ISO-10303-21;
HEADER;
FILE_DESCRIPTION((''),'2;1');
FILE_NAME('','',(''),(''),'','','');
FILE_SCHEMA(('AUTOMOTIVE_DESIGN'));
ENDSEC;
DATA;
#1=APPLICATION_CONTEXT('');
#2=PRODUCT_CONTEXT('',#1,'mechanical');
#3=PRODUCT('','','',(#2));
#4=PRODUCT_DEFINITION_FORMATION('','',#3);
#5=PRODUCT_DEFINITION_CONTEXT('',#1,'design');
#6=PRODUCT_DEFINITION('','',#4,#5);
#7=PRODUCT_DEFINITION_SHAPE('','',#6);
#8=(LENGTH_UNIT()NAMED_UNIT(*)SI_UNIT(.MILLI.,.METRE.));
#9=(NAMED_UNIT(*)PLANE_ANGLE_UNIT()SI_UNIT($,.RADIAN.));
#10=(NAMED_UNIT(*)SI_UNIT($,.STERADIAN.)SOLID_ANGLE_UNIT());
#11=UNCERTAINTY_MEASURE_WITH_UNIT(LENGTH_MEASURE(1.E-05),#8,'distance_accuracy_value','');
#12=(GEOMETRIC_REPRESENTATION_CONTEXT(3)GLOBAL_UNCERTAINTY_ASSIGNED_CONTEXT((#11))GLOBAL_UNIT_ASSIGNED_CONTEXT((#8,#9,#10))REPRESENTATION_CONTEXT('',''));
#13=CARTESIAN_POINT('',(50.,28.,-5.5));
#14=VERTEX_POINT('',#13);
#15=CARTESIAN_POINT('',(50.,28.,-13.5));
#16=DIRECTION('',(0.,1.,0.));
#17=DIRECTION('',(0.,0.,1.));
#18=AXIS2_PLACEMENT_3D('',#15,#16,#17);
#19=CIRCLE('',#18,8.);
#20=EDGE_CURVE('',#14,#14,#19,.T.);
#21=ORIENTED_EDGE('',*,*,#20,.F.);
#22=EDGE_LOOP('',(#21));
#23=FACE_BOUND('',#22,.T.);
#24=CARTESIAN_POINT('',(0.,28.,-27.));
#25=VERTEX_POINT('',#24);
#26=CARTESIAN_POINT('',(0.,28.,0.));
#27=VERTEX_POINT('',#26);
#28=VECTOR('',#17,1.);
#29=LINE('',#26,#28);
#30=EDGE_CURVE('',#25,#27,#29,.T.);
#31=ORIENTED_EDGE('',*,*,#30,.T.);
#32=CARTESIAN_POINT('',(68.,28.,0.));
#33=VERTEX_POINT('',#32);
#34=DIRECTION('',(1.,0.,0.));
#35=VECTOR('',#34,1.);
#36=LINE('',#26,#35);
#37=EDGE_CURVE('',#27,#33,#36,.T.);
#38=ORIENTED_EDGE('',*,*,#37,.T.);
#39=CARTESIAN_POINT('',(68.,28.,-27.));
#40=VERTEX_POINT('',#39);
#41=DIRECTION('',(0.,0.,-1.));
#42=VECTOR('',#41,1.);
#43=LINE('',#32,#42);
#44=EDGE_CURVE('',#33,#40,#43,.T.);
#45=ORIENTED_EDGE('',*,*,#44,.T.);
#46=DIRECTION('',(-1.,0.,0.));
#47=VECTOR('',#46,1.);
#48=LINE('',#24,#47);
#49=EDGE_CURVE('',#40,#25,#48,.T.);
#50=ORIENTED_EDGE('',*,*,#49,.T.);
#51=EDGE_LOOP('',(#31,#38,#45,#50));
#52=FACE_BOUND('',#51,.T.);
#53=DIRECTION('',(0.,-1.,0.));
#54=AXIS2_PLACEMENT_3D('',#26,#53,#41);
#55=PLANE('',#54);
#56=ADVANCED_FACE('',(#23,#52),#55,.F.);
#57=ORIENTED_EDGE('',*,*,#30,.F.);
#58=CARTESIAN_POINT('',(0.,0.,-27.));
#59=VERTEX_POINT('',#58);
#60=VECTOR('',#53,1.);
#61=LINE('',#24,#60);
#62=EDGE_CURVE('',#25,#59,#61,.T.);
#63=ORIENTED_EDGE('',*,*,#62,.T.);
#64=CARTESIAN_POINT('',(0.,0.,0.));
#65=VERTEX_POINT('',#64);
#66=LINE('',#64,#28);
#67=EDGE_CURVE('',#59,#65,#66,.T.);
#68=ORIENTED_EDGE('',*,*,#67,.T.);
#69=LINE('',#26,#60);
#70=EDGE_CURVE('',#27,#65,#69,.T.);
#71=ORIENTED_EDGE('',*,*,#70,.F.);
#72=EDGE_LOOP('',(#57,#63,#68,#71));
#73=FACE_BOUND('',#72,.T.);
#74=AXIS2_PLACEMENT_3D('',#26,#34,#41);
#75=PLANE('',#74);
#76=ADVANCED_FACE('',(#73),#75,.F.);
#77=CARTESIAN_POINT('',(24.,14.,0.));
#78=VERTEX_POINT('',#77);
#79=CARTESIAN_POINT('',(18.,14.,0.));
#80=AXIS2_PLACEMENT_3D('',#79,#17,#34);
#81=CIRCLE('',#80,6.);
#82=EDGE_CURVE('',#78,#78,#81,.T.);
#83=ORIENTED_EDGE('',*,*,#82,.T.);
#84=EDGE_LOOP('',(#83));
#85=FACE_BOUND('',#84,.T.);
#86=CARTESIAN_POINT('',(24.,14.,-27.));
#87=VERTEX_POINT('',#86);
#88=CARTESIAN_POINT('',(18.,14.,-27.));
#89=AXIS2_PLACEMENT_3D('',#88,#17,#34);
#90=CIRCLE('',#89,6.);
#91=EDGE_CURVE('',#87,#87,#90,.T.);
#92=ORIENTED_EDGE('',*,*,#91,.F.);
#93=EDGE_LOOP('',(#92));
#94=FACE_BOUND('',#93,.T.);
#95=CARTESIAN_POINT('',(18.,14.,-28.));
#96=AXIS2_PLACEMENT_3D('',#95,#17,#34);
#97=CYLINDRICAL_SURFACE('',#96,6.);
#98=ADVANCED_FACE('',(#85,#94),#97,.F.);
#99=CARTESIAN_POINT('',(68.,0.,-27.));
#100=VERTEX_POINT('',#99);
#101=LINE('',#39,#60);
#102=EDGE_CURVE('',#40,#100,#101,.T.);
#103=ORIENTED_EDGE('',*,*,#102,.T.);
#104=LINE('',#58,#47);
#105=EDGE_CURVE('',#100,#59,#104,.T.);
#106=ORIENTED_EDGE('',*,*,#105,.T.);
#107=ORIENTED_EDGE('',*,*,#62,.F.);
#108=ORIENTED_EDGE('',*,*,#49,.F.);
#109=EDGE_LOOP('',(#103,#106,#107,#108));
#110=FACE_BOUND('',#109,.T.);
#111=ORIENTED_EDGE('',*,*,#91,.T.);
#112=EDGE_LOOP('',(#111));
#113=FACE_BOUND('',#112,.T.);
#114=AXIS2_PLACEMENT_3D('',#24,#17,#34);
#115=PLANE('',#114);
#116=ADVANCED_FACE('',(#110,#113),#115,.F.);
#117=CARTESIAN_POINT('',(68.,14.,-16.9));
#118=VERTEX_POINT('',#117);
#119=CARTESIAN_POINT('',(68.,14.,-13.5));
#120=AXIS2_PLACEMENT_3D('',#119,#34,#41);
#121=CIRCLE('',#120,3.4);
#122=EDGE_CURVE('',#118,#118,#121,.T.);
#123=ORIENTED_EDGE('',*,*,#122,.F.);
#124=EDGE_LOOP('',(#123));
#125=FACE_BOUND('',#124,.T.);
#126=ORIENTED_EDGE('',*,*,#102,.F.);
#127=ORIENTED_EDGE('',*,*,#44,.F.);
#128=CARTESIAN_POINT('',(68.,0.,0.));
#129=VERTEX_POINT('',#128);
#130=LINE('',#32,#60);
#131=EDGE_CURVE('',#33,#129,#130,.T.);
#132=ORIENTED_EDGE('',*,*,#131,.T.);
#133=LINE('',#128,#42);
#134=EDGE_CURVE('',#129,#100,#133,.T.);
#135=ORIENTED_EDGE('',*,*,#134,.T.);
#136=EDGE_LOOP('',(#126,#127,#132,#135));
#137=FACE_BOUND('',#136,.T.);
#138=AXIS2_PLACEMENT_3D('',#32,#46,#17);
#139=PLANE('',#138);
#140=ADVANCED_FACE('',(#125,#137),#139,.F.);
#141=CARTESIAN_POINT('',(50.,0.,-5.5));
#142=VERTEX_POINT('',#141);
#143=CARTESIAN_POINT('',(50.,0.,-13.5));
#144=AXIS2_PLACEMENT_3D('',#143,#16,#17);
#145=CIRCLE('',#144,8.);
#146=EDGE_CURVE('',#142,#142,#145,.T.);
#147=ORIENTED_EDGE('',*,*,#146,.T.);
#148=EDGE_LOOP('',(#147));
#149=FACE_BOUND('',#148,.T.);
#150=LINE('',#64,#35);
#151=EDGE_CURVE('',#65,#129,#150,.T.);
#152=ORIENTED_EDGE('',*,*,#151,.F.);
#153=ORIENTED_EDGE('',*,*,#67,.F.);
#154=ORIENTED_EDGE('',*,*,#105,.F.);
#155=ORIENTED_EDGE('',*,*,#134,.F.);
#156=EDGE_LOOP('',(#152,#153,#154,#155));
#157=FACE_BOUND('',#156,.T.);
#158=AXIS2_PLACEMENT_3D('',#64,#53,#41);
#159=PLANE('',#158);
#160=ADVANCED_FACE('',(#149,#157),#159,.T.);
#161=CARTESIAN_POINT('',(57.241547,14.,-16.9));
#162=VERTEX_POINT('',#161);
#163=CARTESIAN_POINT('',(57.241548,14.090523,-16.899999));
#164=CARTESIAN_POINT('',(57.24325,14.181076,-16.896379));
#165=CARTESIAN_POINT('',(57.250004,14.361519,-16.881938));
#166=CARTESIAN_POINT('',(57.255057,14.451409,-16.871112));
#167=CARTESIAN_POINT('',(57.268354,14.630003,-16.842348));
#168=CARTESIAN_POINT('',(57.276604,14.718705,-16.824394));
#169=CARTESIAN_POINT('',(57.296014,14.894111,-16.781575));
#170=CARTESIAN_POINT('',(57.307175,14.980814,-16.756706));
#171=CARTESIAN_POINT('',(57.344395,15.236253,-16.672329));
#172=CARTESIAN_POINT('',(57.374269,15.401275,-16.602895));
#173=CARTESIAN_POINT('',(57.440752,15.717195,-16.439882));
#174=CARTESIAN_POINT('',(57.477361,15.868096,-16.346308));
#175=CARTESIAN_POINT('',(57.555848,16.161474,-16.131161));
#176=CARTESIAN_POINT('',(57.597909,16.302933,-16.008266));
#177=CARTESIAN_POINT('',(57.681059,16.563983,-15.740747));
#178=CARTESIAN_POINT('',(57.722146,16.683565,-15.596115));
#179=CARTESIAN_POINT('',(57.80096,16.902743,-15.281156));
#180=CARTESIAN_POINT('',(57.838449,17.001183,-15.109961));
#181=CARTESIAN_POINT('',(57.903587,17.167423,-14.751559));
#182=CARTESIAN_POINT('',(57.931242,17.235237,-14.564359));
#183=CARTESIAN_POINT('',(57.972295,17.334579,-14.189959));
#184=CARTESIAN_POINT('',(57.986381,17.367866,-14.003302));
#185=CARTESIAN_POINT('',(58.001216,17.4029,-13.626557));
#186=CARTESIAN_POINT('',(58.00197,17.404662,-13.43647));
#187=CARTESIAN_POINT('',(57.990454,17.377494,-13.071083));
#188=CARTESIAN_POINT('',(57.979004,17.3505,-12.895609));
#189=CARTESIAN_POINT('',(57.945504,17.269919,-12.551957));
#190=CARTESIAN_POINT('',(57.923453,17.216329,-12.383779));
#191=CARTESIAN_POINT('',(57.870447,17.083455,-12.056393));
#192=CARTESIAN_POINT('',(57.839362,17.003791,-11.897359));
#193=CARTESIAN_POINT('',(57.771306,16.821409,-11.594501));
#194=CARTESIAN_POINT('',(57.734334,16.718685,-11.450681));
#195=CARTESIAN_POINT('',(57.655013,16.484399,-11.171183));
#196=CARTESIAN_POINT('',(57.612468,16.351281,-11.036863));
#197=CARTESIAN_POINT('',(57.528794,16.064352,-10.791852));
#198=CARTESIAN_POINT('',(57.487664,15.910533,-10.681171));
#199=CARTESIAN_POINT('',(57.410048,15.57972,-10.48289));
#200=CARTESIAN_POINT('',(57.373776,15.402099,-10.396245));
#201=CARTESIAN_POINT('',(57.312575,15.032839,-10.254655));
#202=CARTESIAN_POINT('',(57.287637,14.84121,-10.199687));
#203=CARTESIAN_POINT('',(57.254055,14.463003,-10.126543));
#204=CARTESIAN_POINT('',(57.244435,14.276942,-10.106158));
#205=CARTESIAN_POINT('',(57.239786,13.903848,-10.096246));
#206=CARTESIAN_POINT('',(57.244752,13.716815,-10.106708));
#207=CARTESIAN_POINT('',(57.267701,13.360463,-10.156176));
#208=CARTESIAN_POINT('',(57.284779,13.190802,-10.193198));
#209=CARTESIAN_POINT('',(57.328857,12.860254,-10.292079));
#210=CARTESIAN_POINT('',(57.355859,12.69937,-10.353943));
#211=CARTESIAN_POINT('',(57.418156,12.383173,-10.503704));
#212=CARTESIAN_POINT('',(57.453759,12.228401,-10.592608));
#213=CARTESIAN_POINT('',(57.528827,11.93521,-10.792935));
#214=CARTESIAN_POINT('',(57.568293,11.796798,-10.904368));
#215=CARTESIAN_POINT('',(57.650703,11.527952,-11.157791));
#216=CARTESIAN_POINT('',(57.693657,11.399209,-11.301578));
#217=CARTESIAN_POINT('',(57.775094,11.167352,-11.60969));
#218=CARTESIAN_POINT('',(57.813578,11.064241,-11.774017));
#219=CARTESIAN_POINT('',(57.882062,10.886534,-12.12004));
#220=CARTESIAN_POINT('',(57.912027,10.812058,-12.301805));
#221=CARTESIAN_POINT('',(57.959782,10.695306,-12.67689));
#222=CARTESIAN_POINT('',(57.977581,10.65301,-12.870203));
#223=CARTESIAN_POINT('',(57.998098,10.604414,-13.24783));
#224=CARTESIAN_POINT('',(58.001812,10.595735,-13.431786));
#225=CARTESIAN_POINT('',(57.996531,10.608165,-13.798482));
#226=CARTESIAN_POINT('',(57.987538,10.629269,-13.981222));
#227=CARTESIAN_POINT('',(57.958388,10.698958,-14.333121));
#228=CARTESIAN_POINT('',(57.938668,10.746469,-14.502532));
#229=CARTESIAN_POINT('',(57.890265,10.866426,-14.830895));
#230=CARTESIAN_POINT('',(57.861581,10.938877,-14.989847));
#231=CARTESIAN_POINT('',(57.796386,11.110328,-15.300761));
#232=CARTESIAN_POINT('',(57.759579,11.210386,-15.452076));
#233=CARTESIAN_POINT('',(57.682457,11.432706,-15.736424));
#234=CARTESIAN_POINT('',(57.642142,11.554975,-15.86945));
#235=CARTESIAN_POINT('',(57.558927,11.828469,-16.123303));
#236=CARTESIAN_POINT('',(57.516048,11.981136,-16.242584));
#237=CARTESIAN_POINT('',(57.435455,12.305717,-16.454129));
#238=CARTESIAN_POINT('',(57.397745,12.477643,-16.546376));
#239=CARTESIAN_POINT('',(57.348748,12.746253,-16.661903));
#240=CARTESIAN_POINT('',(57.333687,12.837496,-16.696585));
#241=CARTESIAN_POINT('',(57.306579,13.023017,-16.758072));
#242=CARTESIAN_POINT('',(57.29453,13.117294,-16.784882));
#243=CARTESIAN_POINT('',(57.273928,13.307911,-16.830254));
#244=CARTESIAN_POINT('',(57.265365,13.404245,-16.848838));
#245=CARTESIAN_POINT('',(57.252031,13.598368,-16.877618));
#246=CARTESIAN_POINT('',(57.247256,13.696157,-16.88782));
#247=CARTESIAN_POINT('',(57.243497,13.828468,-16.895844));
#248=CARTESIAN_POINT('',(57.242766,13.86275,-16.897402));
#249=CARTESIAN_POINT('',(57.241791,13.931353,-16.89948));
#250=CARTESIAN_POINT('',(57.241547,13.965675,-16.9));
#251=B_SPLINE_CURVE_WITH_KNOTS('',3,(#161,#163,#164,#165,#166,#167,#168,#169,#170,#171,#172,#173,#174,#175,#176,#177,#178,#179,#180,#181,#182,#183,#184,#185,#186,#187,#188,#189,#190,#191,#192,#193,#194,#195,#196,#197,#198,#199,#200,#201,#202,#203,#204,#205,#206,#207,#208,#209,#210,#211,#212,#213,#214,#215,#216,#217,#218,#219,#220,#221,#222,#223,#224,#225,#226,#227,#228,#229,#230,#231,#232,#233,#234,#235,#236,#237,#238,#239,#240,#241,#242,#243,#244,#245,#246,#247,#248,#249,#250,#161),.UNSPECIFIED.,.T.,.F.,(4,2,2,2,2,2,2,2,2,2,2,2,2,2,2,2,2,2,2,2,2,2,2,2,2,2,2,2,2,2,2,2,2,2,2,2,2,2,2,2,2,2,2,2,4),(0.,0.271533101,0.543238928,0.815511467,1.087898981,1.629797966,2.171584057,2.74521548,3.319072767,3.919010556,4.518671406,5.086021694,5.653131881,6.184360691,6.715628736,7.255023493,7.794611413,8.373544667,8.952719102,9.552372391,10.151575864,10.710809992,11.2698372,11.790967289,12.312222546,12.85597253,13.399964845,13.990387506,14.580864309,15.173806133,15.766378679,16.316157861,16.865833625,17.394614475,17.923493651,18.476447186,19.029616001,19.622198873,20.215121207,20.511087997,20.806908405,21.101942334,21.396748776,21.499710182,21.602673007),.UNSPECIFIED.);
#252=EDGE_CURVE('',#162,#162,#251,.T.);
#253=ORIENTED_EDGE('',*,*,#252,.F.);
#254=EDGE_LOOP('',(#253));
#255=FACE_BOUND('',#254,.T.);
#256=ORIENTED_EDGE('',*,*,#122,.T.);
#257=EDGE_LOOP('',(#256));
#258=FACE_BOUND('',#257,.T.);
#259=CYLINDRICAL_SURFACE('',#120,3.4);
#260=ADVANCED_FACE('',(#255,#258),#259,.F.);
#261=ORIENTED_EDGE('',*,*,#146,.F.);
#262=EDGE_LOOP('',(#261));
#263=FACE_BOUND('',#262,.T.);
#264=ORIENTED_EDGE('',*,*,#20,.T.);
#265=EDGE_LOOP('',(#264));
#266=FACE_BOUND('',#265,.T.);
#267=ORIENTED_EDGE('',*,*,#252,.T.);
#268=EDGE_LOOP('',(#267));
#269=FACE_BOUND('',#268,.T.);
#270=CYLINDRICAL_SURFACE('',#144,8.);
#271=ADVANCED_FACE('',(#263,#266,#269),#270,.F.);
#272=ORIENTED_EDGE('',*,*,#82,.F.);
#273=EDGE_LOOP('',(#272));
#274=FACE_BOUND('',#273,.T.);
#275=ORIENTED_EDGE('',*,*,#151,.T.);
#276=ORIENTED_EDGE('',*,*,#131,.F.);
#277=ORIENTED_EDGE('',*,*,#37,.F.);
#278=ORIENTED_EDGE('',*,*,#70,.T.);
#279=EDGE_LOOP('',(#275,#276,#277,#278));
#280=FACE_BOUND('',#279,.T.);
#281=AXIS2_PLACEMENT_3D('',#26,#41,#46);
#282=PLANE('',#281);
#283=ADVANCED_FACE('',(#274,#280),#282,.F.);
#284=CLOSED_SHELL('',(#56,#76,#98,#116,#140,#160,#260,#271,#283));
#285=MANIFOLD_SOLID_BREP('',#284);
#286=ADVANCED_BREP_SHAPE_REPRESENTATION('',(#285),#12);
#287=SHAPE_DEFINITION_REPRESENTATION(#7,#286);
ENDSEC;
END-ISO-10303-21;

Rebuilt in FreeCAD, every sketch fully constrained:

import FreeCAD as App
import Part
import Sketcher

V = App.Vector
Q = App.Units.Quantity

doc = App.newDocument("Part")
params = doc.addObject("Spreadsheet::Sheet", "Params")
for row, (alias, value) in enumerate([
    ("sketch1_width", "68 mm"),
    ("sketch1_height", "27 mm"),
    ("pad1_length", "28 mm"),
    ("sketch2_diameter", "12 mm"),
    ("pocket1_length", "28 mm"),
    ("sketch3_diameter", "16 mm"),
    ("pocket2_length", "28 mm"),
    ("sketch4_diameter", "6.8 mm"),
    ("hole_diameter", "6.8 mm"),
    ("hole_depth", "15 mm"),
], start=1):
    params.set(f"A{row}", alias)
    params.set(f"B{row}", "=" + value)
    params.setAlias(f"B{row}", alias)

body = doc.addObject("PartDesign::Body", "Body")

# Sketch on XZ plane
sketch1 = body.newObject("Sketcher::SketchObject", "Sketch")
sketch1.AttachmentSupport = (doc.getObject("XZ_Plane"), [""])
sketch1.MapMode = "FlatFace"
sketch1.addGeometry(Part.LineSegment(V(0, -27, 0), V(0, 0, 0)), False)
sketch1.addGeometry(Part.LineSegment(V(0, 0, 0), V(68, 0, 0)), False)
sketch1.addGeometry(Part.LineSegment(V(68, 0, 0), V(68, -27, 0)), False)
sketch1.addGeometry(Part.LineSegment(V(68, -27, 0), V(0, -27, 0)), False)
sketch1.addConstraint(Sketcher.Constraint("Coincident", 0, 2, 1, 1))
sketch1.addConstraint(Sketcher.Constraint("Coincident", 1, 2, 2, 1))
sketch1.addConstraint(Sketcher.Constraint("Coincident", 2, 2, 3, 1))
sketch1.addConstraint(Sketcher.Constraint("Coincident", 3, 2, 0, 1))
sketch1.addConstraint(Sketcher.Constraint("Vertical", 0))
sketch1.addConstraint(Sketcher.Constraint("Horizontal", 1))
sketch1.addConstraint(Sketcher.Constraint("Vertical", 2))
sketch1.addConstraint(Sketcher.Constraint("Horizontal", 3))
sketch1.addConstraint(Sketcher.Constraint("Coincident", 0, 2, -1, 1))
sketch1.addConstraint(Sketcher.Constraint("DistanceX", 1, 1, 1, 2, Q("68 mm")))
sketch1.addConstraint(Sketcher.Constraint("DistanceY", 0, 1, 0, 2, Q("27 mm")))
sketch1.setExpression("Constraints[9]", "Params.sketch1_width")
sketch1.setExpression("Constraints[10]", "Params.sketch1_height")
pad1 = body.newObject("PartDesign::Pad", "Pad")
pad1.Profile = sketch1
pad1.setExpression("Length", "Params.pad1_length")
pad1.Reversed = True

# Sketch on XY plane
sketch2 = body.newObject("Sketcher::SketchObject", "Sketch001")
sketch2.AttachmentSupport = (doc.getObject("XY_Plane"), [""])
sketch2.MapMode = "FlatFace"
sketch2.addGeometry(Part.Circle(V(18, 14, 0), V(0, 0, 1), 6), False)
sketch2.addConstraint(Sketcher.Constraint("Diameter", 0, Q("12 mm")))
sketch2.addConstraint(Sketcher.Constraint("DistanceX", -1, 1, 0, 3, Q("18 mm")))
sketch2.addConstraint(Sketcher.Constraint("DistanceY", -1, 1, 0, 3, Q("14 mm")))
sketch2.setExpression("Constraints[0]", "Params.sketch2_diameter")
pocket1 = body.newObject("PartDesign::Pocket", "Pocket")
pocket1.Profile = sketch2
pocket1.setExpression("Length", "Params.pocket1_length")

# Sketch on XZ plane
sketch3 = body.newObject("Sketcher::SketchObject", "Sketch002")
sketch3.AttachmentSupport = (doc.getObject("XZ_Plane"), [""])
sketch3.MapMode = "FlatFace"
sketch3.AttachmentOffset = App.Placement(V(0, 0, -28), App.Rotation())
sketch3.addGeometry(Part.Circle(V(50, -14, 0), V(0, 0, 1), 8), False)
sketch3.addConstraint(Sketcher.Constraint("Diameter", 0, Q("16 mm")))
sketch3.addConstraint(Sketcher.Constraint("DistanceX", -1, 1, 0, 3, Q("50 mm")))
sketch3.addConstraint(Sketcher.Constraint("DistanceY", 0, 3, -1, 1, Q("13.5 mm")))
sketch3.setExpression("Constraints[0]", "Params.sketch3_diameter")
pocket2 = body.newObject("PartDesign::Pocket", "Pocket001")
pocket2.Profile = sketch3
pocket2.setExpression("Length", "Params.pocket2_length")
pocket2.Reversed = True

# Sketch on YZ plane
sketch4 = body.newObject("Sketcher::SketchObject", "Sketch003")
sketch4.AttachmentSupport = (doc.getObject("YZ_Plane"), [""])
sketch4.MapMode = "FlatFace"
sketch4.AttachmentOffset = App.Placement(V(0, 0, 68), App.Rotation())
sketch4.addGeometry(Part.Circle(V(14, -13.5, 0), V(0, 0, 1), 3.4), False)
sketch4.addConstraint(Sketcher.Constraint("Diameter", 0, Q("6.8 mm")))
sketch4.addConstraint(Sketcher.Constraint("DistanceX", -1, 1, 0, 3, Q("14 mm")))
sketch4.addConstraint(Sketcher.Constraint("DistanceY", 0, 3, -1, 1, Q("13.5 mm")))
sketch4.setExpression("Constraints[0]", "Params.sketch4_diameter")
doc.recompute()
hole = body.newObject("PartDesign::Hole", "Hole")
hole.Profile = sketch4
hole.ThreadType = "None"
hole.setExpression("Diameter", "Params.hole_diameter")
hole.DepthType = "Dimension"
hole.setExpression("Depth", "Params.hole_depth")
hole.DrillPoint = "Flat"

doc.recompute()
